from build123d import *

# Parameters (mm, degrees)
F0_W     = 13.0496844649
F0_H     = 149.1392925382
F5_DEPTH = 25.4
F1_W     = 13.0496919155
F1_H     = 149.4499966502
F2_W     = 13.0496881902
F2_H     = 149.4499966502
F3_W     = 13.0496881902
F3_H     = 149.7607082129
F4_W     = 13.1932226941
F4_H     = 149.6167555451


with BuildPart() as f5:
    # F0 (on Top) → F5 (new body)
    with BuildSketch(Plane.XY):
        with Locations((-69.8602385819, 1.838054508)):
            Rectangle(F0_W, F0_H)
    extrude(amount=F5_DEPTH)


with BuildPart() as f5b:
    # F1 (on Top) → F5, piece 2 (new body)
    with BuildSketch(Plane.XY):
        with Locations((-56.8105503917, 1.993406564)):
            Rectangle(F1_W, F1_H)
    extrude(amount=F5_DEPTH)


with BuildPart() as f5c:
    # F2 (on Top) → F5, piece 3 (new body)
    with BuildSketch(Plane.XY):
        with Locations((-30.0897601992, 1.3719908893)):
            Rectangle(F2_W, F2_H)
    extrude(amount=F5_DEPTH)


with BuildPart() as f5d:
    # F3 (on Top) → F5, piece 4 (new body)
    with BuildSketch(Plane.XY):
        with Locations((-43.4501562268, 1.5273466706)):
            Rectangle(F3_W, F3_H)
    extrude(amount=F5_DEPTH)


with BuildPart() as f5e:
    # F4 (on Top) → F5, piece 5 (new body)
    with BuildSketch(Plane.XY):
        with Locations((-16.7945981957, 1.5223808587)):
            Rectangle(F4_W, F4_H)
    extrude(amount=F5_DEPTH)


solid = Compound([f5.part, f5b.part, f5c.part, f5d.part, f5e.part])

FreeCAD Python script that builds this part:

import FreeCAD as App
import Part
import Sketcher
Q = App.Units.Quantity

doc = App.newDocument("Part")
body = doc.addObject("PartDesign::Body", "Body")

# Sketch on XY plane
sketch1 = body.newObject("Sketcher::SketchObject", "Sketch")
sketch1.AttachmentSupport = (doc.getObject("XY_Plane"), [""])
sketch1.MapMode = "FlatFace"
sketch1.addGeometry(Part.LineSegment(App.Vector(-76, 76, 0), App.Vector(-76, -73, 0)), False)
sketch1.addGeometry(Part.LineSegment(App.Vector(-76, -73, 0), App.Vector(-63, -73, 0)), False)
sketch1.addGeometry(Part.LineSegment(App.Vector(-63, -73, 0), App.Vector(-63, 76, 0)), False)
sketch1.addGeometry(Part.LineSegment(App.Vector(-63, 76, 0), App.Vector(-76, 76, 0)), False)
sketch1.addConstraint(Sketcher.Constraint("Coincident", 0, 2, 1, 1))
sketch1.addConstraint(Sketcher.Constraint("Coincident", 1, 2, 2, 1))
sketch1.addConstraint(Sketcher.Constraint("Coincident", 2, 2, 3, 1))
sketch1.addConstraint(Sketcher.Constraint("Coincident", 3, 2, 0, 1))
sketch1.addConstraint(Sketcher.Constraint("Vertical", 0))
sketch1.addConstraint(Sketcher.Constraint("Horizontal", 1))
sketch1.addConstraint(Sketcher.Constraint("Vertical", 2))
sketch1.addConstraint(Sketcher.Constraint("Horizontal", 3))
sketch1.addConstraint(Sketcher.Constraint("DistanceY", -1, 1, 2, 2, 76.407701))
sketch1.addConstraint(Sketcher.Constraint("DistanceX", 1, 1, 1, 2, 13.049684))
sketch1.addConstraint(Sketcher.Constraint("DistanceY", 0, 2, 0, 1, 149.139293))
sketch1.addConstraint(Sketcher.Constraint("DistanceX", 0, 2, -1, 1, 76.385081))
pad1 = body.newObject("PartDesign::Pad", "Pad")
pad1.Profile = sketch1
pad1.Length = Q("1 in")
body2 = doc.addObject("PartDesign::Body", "Body001")

# Sketch on XY plane
sketch2 = body2.newObject("Sketcher::SketchObject", "Sketch001")
sketch2.AttachmentSupport = (doc.getObject("XY_Plane001"), [""])
sketch2.MapMode = "FlatFace"
sketch2.addGeometry(Part.LineSegment(App.Vector(-63, 77, 0), App.Vector(-63, -73, 0)), False)
sketch2.addGeometry(Part.LineSegment(App.Vector(-63, -73, 0), App.Vector(-50, -73, 0)), False)
sketch2.addGeometry(Part.LineSegment(App.Vector(-50, -73, 0), App.Vector(-50, 77, 0)), False)
sketch2.addGeometry(Part.LineSegment(App.Vector(-50, 77, 0), App.Vector(-63, 77, 0)), False)
sketch2.addConstraint(Sketcher.Constraint("Coincident", 0, 2, 1, 1))
sketch2.addConstraint(Sketcher.Constraint("Coincident", 1, 2, 2, 1))
sketch2.addConstraint(Sketcher.Constraint("Coincident", 2, 2, 3, 1))
sketch2.addConstraint(Sketcher.Constraint("Coincident", 3, 2, 0, 1))
sketch2.addConstraint(Sketcher.Constraint("Vertical", 0))
sketch2.addConstraint(Sketcher.Constraint("Horizontal", 1))
sketch2.addConstraint(Sketcher.Constraint("Vertical", 2))
sketch2.addConstraint(Sketcher.Constraint("Horizontal", 3))
sketch2.addConstraint(Sketcher.Constraint("DistanceX", 1, 1, 1, 2, 13.049692))
sketch2.addConstraint(Sketcher.Constraint("DistanceY", 0, 2, 0, 1, 149.449997))
sketch2.addConstraint(Sketcher.Constraint("DistanceY", 0, 2, -1, 1, 72.731592))
sketch2.addConstraint(Sketcher.Constraint("DistanceX", 0, 2, -1, 1, 63.335396))
pad2 = body2.newObject("PartDesign::Pad", "Pad001")
pad2.Profile = sketch2
pad2.Length = Q("1 in")
body3 = doc.addObject("PartDesign::Body", "Body002")

# Sketch on XY plane
sketch3 = body3.newObject("Sketcher::SketchObject", "Sketch002")
sketch3.AttachmentSupport = (doc.getObject("XY_Plane002"), [""])
sketch3.MapMode = "FlatFace"
sketch3.addGeometry(Part.LineSegment(App.Vector(-37, 76, 0), App.Vector(-37, -73, 0)), False)
sketch3.addGeometry(Part.LineSegment(App.Vector(-37, -73, 0), App.Vector(-24, -73, 0)), False)
sketch3.addGeometry(Part.LineSegment(App.Vector(-24, -73, 0), App.Vector(-24, 76, 0)), False)
sketch3.addGeometry(Part.LineSegment(App.Vector(-24, 76, 0), App.Vector(-37, 76, 0)), False)
sketch3.addConstraint(Sketcher.Constraint("Coincident", 0, 2, 1, 1))
sketch3.addConstraint(Sketcher.Constraint("Coincident", 1, 2, 2, 1))
sketch3.addConstraint(Sketcher.Constraint("Coincident", 2, 2, 3, 1))
sketch3.addConstraint(Sketcher.Constraint("Coincident", 3, 2, 0, 1))
sketch3.addConstraint(Sketcher.Constraint("Vertical", 0))
sketch3.addConstraint(Sketcher.Constraint("Horizontal", 1))
sketch3.addConstraint(Sketcher.Constraint("Vertical", 2))
sketch3.addConstraint(Sketcher.Constraint("Horizontal", 3))
sketch3.addConstraint(Sketcher.Constraint("DistanceX", 1, 1, 1, 2, 13.049688))
sketch3.addConstraint(Sketcher.Constraint("DistanceY", 0, 2, 0, 1, 149.449997))
sketch3.addConstraint(Sketcher.Constraint("DistanceY", -1, 1, 2, 2, 76.096989))
sketch3.addConstraint(Sketcher.Constraint("DistanceX", 0, 2, -1, 1, 36.614604))
pad3 = body3.newObject("PartDesign::Pad", "Pad002")
pad3.Profile = sketch3
pad3.Length = Q("1 in")
body4 = doc.addObject("PartDesign::Body", "Body003")

# Sketch on XY plane
sketch4 = body4.newObject("Sketcher::SketchObject", "Sketch003")
sketch4.AttachmentSupport = (doc.getObject("XY_Plane003"), [""])
sketch4.MapMode = "FlatFace"
sketch4.addGeometry(Part.LineSegment(App.Vector(-50, 76, 0), App.Vector(-50, -73, 0)), False)
sketch4.addGeometry(Part.LineSegment(App.Vector(-50, -73, 0), App.Vector(-37, -73, 0)), False)
sketch4.addGeometry(Part.LineSegment(App.Vector(-37, -73, 0), App.Vector(-37, 76, 0)), False)
sketch4.addGeometry(Part.LineSegment(App.Vector(-37, 76, 0), App.Vector(-50, 76, 0)), False)
sketch4.addConstraint(Sketcher.Constraint("Coincident", 0, 2, 1, 1))
sketch4.addConstraint(Sketcher.Constraint("Coincident", 1, 2, 2, 1))
sketch4.addConstraint(Sketcher.Constraint("Coincident", 2, 2, 3, 1))
sketch4.addConstraint(Sketcher.Constraint("Coincident", 3, 2, 0, 1))
sketch4.addConstraint(Sketcher.Constraint("Vertical", 0))
sketch4.addConstraint(Sketcher.Constraint("Horizontal", 1))
sketch4.addConstraint(Sketcher.Constraint("Vertical", 2))
sketch4.addConstraint(Sketcher.Constraint("Horizontal", 3))
sketch4.addConstraint(Sketcher.Constraint("DistanceX", 1, 1, 1, 2, 13.049688))
sketch4.addConstraint(Sketcher.Constraint("DistanceY", 0, 2, 0, 1, 149.760708))
sketch4.addConstraint(Sketcher.Constraint("DistanceX", 0, 2, -1, 1, 49.975))
sketch4.addConstraint(Sketcher.Constraint("DistanceY", -1, 1, 2, 2, 76.407701))
pad4 = body4.newObject("PartDesign::Pad", "Pad003")
pad4.Profile = sketch4
pad4.Length = Q("1 in")
body5 = doc.addObject("PartDesign::Body", "Body004")

# Sketch on XY plane
sketch5 = body5.newObject("Sketcher::SketchObject", "Sketch004")
sketch5.AttachmentSupport = (doc.getObject("XY_Plane004"), [""])
sketch5.MapMode = "FlatFace"
sketch5.addGeometry(Part.LineSegment(App.Vector(-23, 76, 0), App.Vector(-23, -73, 0)), False)
sketch5.addGeometry(Part.LineSegment(App.Vector(-23, -73, 0), App.Vector(-10, -73, 0)), False)
sketch5.addGeometry(Part.LineSegment(App.Vector(-10, -73, 0), App.Vector(-10, 76, 0)), False)
sketch5.addGeometry(Part.LineSegment(App.Vector(-10, 76, 0), App.Vector(-23, 76, 0)), False)
sketch5.addConstraint(Sketcher.Constraint("Coincident", 0, 2, 1, 1))
sketch5.addConstraint(Sketcher.Constraint("Coincident", 1, 2, 2, 1))
sketch5.addConstraint(Sketcher.Constraint("Coincident", 2, 2, 3, 1))
sketch5.addConstraint(Sketcher.Constraint("Coincident", 3, 2, 0, 1))
sketch5.addConstraint(Sketcher.Constraint("Vertical", 0))
sketch5.addConstraint(Sketcher.Constraint("Horizontal", 1))
sketch5.addConstraint(Sketcher.Constraint("Vertical", 2))
sketch5.addConstraint(Sketcher.Constraint("Horizontal", 3))
sketch5.addConstraint(Sketcher.Constraint("DistanceX", 1, 1, 1, 2, 13.193223))
sketch5.addConstraint(Sketcher.Constraint("DistanceY", 0, 2, 0, 1, 149.616756))
sketch5.addConstraint(Sketcher.Constraint("DistanceX", 0, 2, -1, 1, 23.39121))
sketch5.addConstraint(Sketcher.Constraint("DistanceY", -1, 1, 2, 2, 76.330759))
pad5 = body5.newObject("PartDesign::Pad", "Pad004")
pad5.Profile = sketch5
pad5.Length = Q("1 in")

doc.recompute()
